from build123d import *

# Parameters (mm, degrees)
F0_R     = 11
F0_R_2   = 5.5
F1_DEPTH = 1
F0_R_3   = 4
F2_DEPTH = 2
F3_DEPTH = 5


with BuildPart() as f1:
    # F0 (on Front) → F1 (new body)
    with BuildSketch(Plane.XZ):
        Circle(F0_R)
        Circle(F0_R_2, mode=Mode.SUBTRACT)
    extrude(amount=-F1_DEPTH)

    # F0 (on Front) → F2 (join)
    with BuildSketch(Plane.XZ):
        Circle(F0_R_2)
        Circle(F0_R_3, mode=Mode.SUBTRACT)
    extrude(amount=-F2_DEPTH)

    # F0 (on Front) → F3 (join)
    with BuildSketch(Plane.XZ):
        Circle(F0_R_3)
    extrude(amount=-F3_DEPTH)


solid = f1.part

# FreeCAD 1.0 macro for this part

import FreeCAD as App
import Part
import Sketcher

V = App.Vector

doc = App.newDocument("Part")
body = doc.addObject("PartDesign::Body", "Body")

# Sketch on XZ plane
sketch1 = body.newObject("Sketcher::SketchObject", "Sketch")
sketch1.AttachmentSupport = (doc.getObject("XZ_Plane"), [""])
sketch1.MapMode = "FlatFace"
sketch1.addGeometry([
    Part.Circle(V(0, 0, 0), V(0, 0, 1), 11),
    Part.Circle(V(0, 0, 0), V(0, 0, 1), 6),
], False)
sketch1.addConstraint([
    Sketcher.Constraint("Coincident", 0, 3, -1, 1),
    Sketcher.Constraint("Coincident", 1, 3, -1, 1),
    Sketcher.Constraint("Diameter", 0, 22.0),
    Sketcher.Constraint("Diameter", 1, 11.0),
])
pad1 = body.newObject("PartDesign::Pad", "Pad")
pad1.Profile = sketch1
pad1.Length = 1
pad1.Reversed = True

# Sketch on XZ plane
sketch2 = body.newObject("Sketcher::SketchObject", "Sketch001")
sketch2.AttachmentSupport = (doc.getObject("XZ_Plane"), [""])
sketch2.MapMode = "FlatFace"
sketch2.addGeometry([
    Part.Circle(V(0, 0, 0), V(0, 0, 1), 5.5),
    Part.Circle(V(0, 0, 0), V(0, 0, 1), 4),
], False)
sketch2.addConstraint([
    Sketcher.Constraint("Coincident", 0, 3, -1, 1),
    Sketcher.Constraint("Coincident", 1, 3, -1, 1),
    Sketcher.Constraint("Diameter", 0, 11.0),
    Sketcher.Constraint("Diameter", 1, 8.0),
])
pad2 = body.newObject("PartDesign::Pad", "Pad001")
pad2.Profile = sketch2
pad2.Length = 2
pad2.Reversed = True

# Sketch on XZ plane
sketch3 = body.newObject("Sketcher::SketchObject", "Sketch002")
sketch3.AttachmentSupport = (doc.getObject("XZ_Plane"), [""])
sketch3.MapMode = "FlatFace"
sketch3.addGeometry(Part.Circle(V(0, 0, 0), V(0, 0, 1), 4), False)
sketch3.addConstraint([
    Sketcher.Constraint("Coincident", 0, 3, -1, 1),
    Sketcher.Constraint("Diameter", 0, 8.0),
])
pad3 = body.newObject("PartDesign::Pad", "Pad002")
pad3.Profile = sketch3
pad3.Length = 5
pad3.Reversed = True

doc.recompute()
